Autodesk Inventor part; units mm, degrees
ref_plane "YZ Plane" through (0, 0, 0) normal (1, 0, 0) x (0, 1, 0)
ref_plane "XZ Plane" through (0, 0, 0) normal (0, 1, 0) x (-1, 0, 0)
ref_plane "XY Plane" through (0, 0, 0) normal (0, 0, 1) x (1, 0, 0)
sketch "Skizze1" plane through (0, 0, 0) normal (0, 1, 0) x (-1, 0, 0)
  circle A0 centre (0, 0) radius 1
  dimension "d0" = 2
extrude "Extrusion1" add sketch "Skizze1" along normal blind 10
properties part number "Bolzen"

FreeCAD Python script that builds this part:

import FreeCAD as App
import Part
import Sketcher
Q = App.Units.Quantity

doc = App.newDocument("Part")
body = doc.addObject("PartDesign::Body", "Body")

# Sketch on XZ plane
sketch1 = body.newObject("Sketcher::SketchObject", "Sketch")
sketch1.AttachmentSupport = (doc.getObject("XZ_Plane"), [""])
sketch1.MapMode = "FlatFace"
sketch1.addGeometry(Part.Circle(App.Vector(0, 0, 0), App.Vector(0, 0, 1), 1), False)
sketch1.addConstraint([
    Sketcher.Constraint("Coincident", 0, 3, -1, 1),
    Sketcher.Constraint("Diameter", 0, Q("2 mm")),
])
pad1 = body.newObject("PartDesign::Pad", "Pad")
pad1.Profile = sketch1
pad1.Length = 10
pad1.Reversed = True

doc.recompute()
